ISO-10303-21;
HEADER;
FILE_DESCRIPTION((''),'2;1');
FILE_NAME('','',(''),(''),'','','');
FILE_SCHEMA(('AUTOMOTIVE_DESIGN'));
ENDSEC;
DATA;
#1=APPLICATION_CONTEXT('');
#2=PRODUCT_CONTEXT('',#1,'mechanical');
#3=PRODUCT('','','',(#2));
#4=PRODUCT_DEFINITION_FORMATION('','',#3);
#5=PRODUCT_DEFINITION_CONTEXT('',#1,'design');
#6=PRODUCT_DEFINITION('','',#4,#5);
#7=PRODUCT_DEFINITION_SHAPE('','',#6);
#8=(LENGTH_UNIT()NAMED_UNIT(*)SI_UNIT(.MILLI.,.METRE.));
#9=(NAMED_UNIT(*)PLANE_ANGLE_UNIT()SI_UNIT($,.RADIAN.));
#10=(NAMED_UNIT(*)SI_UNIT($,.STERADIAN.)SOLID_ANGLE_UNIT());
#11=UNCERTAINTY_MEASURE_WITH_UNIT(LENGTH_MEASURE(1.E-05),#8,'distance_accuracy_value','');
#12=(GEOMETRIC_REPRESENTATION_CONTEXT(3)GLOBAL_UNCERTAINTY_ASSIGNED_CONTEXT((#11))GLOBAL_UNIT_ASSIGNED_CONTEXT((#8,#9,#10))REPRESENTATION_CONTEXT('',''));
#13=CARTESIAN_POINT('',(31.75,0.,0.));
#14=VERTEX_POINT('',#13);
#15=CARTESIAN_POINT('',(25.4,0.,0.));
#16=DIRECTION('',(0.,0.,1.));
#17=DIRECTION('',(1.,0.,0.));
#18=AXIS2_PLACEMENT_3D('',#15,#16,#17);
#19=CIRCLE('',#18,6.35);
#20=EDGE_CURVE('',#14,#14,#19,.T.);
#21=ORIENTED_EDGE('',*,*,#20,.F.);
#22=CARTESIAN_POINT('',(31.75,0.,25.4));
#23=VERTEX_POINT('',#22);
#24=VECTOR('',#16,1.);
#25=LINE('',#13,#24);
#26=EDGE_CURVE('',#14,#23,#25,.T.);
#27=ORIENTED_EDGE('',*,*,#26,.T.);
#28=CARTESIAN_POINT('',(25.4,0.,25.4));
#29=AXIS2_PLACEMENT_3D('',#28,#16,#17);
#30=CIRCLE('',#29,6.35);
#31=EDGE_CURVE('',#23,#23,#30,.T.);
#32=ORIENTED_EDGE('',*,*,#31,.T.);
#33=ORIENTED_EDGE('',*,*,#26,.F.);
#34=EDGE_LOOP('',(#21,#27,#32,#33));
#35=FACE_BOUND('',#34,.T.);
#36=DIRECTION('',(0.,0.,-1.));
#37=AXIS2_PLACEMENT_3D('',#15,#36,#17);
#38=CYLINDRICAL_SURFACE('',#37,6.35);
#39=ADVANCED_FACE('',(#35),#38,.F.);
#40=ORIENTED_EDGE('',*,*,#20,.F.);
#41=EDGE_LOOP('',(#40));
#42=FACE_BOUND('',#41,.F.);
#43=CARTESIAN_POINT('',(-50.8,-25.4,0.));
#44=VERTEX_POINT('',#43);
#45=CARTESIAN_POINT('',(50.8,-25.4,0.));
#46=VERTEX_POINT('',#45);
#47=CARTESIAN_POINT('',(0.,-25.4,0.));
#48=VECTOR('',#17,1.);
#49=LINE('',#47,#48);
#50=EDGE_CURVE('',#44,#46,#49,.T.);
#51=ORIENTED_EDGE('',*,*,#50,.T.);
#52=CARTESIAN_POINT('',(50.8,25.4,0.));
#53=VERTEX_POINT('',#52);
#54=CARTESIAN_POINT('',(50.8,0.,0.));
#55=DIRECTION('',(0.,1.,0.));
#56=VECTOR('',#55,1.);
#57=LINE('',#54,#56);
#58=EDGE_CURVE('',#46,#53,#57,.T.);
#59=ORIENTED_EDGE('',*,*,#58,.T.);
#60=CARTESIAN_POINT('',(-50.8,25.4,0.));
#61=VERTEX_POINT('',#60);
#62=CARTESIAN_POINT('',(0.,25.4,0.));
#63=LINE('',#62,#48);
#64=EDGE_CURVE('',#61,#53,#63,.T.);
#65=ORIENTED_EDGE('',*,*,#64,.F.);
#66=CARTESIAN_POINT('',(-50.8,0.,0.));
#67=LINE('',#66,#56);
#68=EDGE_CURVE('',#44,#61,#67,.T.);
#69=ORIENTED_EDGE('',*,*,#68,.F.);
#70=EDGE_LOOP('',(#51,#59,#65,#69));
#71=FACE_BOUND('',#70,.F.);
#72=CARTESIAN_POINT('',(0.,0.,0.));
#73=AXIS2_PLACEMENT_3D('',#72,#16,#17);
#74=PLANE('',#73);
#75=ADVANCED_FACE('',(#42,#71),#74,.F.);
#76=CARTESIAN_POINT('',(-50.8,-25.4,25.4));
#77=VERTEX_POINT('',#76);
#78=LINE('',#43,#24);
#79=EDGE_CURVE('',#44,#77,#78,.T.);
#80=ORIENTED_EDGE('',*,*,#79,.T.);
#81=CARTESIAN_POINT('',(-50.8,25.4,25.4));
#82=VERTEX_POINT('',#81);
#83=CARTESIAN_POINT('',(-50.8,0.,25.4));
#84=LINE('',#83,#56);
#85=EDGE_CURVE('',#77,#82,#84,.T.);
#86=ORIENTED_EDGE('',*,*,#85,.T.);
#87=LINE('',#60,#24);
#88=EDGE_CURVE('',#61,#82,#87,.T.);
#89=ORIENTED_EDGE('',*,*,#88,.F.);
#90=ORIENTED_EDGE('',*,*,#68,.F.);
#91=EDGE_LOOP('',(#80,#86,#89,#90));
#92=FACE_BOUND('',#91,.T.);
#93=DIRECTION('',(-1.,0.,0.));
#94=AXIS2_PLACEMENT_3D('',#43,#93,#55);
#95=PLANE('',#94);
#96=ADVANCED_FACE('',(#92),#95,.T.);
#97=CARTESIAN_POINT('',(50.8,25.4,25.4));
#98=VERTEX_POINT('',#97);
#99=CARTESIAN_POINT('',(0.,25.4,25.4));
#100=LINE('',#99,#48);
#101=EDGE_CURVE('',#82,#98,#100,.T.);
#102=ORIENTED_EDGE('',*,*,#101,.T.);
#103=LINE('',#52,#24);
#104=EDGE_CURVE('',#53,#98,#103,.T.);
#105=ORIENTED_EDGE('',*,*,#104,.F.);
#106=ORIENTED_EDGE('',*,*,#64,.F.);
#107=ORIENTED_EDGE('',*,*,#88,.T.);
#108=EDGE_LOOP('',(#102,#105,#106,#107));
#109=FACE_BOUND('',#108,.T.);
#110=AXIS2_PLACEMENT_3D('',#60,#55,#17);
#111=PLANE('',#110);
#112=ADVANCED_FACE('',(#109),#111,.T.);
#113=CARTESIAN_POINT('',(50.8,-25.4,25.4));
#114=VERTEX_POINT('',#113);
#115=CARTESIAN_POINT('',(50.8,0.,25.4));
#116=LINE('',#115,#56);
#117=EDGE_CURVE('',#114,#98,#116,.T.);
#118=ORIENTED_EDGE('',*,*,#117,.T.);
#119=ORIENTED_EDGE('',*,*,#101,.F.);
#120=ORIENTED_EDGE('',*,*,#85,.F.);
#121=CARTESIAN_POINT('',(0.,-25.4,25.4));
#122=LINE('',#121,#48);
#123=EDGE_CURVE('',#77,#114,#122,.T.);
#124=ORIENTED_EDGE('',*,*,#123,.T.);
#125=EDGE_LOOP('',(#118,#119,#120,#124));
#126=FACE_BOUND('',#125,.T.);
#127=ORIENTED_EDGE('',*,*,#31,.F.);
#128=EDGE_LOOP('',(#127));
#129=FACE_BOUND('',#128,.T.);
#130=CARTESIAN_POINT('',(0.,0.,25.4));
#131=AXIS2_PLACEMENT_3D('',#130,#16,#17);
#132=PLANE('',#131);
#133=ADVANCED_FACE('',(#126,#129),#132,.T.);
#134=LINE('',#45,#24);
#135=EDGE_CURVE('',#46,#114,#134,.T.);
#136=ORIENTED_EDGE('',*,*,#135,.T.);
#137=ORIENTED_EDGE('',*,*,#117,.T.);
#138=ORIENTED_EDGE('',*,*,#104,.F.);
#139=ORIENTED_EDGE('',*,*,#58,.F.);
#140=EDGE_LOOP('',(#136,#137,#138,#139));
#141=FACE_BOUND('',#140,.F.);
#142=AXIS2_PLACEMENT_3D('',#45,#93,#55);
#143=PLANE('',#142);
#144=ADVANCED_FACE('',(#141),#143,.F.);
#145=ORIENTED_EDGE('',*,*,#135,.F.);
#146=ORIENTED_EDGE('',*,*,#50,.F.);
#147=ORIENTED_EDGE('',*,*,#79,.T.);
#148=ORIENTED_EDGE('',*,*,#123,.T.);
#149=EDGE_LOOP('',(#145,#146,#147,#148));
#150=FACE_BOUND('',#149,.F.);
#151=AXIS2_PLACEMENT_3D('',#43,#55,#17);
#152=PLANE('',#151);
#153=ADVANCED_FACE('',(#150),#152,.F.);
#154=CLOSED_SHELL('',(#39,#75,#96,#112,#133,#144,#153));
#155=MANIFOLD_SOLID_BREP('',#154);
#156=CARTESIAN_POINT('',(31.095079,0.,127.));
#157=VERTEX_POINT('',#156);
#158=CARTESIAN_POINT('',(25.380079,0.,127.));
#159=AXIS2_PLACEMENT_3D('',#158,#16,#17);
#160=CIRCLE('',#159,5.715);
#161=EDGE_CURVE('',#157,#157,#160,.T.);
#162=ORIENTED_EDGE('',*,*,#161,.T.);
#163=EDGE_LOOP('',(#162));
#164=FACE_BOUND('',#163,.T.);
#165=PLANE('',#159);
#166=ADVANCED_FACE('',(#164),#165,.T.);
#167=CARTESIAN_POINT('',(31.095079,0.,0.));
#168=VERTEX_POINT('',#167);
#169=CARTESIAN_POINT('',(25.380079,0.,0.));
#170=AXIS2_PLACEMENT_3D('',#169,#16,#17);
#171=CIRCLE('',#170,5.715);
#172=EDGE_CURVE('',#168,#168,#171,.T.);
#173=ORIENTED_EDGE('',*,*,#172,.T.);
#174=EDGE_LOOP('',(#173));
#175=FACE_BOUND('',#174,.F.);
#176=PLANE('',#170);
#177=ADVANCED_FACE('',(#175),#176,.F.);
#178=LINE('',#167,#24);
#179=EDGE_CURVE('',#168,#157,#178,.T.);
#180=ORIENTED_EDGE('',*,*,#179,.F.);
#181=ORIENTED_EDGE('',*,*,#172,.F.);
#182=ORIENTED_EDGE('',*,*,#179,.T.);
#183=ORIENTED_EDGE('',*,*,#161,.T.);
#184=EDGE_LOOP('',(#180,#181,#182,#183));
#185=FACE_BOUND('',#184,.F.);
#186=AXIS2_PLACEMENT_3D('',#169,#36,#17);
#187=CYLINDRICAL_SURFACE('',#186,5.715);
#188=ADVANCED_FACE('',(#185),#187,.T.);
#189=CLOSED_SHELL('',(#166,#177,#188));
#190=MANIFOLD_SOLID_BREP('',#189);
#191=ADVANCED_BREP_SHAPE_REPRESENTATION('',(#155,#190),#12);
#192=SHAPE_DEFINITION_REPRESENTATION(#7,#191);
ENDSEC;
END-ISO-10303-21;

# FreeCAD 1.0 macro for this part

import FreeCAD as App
import Part
import Sketcher

V = App.Vector
Q = App.Units.Quantity

doc = App.newDocument("Part")
params = doc.addObject("Spreadsheet::Sheet", "Params")
for row, (alias, value) in enumerate([
    ("sketch1_diameter", "0.5 in"),
    ("sketch1_width", "4 in"),
    ("sketch1_height", "2 in"),
    ("pad1_length", "1 in"),
    ("sketch2_diameter", "0.45 in"),
    ("pad2_length", "5 in"),
], start=1):
    params.set(f"A{row}", alias)
    params.set(f"B{row}", "=" + value)
    params.setAlias(f"B{row}", alias)

body = doc.addObject("PartDesign::Body", "Body")

sketch1 = body.newObject("Sketcher::SketchObject", "Sketch")
sketch1.AttachmentSupport = (doc.getObject("XY_Plane"), [""])
sketch1.MapMode = "FlatFace"
sketch1.addGeometry(Part.LineSegment(V(-50.8, 25.4, 0), V(-50.8, -25.4, 0)), False)
sketch1.addGeometry(Part.LineSegment(V(-50.8, -25.4, 0), V(50.8, -25.4, 0)), False)
sketch1.addGeometry(Part.LineSegment(V(50.8, -25.4, 0), V(50.8, 25.4, 0)), False)
sketch1.addGeometry(Part.LineSegment(V(50.8, 25.4, 0), V(-50.8, 25.4, 0)), False)
sketch1.addGeometry(Part.Circle(V(25.4, 0, 0), V(0, 0, 1), 6.35), False)
sketch1.addConstraint(Sketcher.Constraint("Coincident", 0, 2, 1, 1))
sketch1.addConstraint(Sketcher.Constraint("Coincident", 1, 2, 2, 1))
sketch1.addConstraint(Sketcher.Constraint("Coincident", 2, 2, 3, 1))
sketch1.addConstraint(Sketcher.Constraint("Coincident", 3, 2, 0, 1))
sketch1.addConstraint(Sketcher.Constraint("Vertical", 0))
sketch1.addConstraint(Sketcher.Constraint("Horizontal", 1))
sketch1.addConstraint(Sketcher.Constraint("Vertical", 2))
sketch1.addConstraint(Sketcher.Constraint("Horizontal", 3))
sketch1.addConstraint(Sketcher.Constraint("Symmetric", 0, 2, 2, 2, -1, 1))
sketch1.addConstraint(Sketcher.Constraint("PointOnObject", 4, 3, -1))
sketch1.addConstraint(Sketcher.Constraint("Diameter", 4, Q("0.5 in")))
sketch1.addConstraint(Sketcher.Constraint("DistanceX", 1, 1, 1, 2, Q("4 in")))
sketch1.addConstraint(Sketcher.Constraint("DistanceY", 0, 2, 0, 1, Q("2 in")))
sketch1.addConstraint(Sketcher.Constraint("DistanceX", -1, 1, 4, 3, Q("1 in")))
sketch1.setExpression("Constraints[10]", "Params.sketch1_diameter")
sketch1.setExpression("Constraints[11]", "Params.sketch1_width")
sketch1.setExpression("Constraints[12]", "Params.sketch1_height")
pad1 = body.newObject("PartDesign::Pad", "Pad")
pad1.Profile = sketch1
pad1.setExpression("Length", "Params.pad1_length")
body2 = doc.addObject("PartDesign::Body", "Body001")

sketch2 = body2.newObject("Sketcher::SketchObject", "Sketch001")
sketch2.AttachmentSupport = (doc.getObject("XY_Plane001"), [""])
sketch2.MapMode = "FlatFace"
sketch2.addGeometry(Part.Circle(V(25.380079, 0, 0), V(0, 0, 1), 5.715), False)
sketch2.addConstraint(Sketcher.Constraint("PointOnObject", 0, 3, -1))
sketch2.addConstraint(Sketcher.Constraint("Diameter", 0, Q("0.45 in")))
sketch2.addConstraint(Sketcher.Constraint("DistanceX", -1, 1, 0, 3, 25.380079))
sketch2.setExpression("Constraints[1]", "Params.sketch2_diameter")
pad2 = body2.newObject("PartDesign::Pad", "Pad001")
pad2.Profile = sketch2
pad2.setExpression("Length", "Params.pad2_length")

doc.recompute()
